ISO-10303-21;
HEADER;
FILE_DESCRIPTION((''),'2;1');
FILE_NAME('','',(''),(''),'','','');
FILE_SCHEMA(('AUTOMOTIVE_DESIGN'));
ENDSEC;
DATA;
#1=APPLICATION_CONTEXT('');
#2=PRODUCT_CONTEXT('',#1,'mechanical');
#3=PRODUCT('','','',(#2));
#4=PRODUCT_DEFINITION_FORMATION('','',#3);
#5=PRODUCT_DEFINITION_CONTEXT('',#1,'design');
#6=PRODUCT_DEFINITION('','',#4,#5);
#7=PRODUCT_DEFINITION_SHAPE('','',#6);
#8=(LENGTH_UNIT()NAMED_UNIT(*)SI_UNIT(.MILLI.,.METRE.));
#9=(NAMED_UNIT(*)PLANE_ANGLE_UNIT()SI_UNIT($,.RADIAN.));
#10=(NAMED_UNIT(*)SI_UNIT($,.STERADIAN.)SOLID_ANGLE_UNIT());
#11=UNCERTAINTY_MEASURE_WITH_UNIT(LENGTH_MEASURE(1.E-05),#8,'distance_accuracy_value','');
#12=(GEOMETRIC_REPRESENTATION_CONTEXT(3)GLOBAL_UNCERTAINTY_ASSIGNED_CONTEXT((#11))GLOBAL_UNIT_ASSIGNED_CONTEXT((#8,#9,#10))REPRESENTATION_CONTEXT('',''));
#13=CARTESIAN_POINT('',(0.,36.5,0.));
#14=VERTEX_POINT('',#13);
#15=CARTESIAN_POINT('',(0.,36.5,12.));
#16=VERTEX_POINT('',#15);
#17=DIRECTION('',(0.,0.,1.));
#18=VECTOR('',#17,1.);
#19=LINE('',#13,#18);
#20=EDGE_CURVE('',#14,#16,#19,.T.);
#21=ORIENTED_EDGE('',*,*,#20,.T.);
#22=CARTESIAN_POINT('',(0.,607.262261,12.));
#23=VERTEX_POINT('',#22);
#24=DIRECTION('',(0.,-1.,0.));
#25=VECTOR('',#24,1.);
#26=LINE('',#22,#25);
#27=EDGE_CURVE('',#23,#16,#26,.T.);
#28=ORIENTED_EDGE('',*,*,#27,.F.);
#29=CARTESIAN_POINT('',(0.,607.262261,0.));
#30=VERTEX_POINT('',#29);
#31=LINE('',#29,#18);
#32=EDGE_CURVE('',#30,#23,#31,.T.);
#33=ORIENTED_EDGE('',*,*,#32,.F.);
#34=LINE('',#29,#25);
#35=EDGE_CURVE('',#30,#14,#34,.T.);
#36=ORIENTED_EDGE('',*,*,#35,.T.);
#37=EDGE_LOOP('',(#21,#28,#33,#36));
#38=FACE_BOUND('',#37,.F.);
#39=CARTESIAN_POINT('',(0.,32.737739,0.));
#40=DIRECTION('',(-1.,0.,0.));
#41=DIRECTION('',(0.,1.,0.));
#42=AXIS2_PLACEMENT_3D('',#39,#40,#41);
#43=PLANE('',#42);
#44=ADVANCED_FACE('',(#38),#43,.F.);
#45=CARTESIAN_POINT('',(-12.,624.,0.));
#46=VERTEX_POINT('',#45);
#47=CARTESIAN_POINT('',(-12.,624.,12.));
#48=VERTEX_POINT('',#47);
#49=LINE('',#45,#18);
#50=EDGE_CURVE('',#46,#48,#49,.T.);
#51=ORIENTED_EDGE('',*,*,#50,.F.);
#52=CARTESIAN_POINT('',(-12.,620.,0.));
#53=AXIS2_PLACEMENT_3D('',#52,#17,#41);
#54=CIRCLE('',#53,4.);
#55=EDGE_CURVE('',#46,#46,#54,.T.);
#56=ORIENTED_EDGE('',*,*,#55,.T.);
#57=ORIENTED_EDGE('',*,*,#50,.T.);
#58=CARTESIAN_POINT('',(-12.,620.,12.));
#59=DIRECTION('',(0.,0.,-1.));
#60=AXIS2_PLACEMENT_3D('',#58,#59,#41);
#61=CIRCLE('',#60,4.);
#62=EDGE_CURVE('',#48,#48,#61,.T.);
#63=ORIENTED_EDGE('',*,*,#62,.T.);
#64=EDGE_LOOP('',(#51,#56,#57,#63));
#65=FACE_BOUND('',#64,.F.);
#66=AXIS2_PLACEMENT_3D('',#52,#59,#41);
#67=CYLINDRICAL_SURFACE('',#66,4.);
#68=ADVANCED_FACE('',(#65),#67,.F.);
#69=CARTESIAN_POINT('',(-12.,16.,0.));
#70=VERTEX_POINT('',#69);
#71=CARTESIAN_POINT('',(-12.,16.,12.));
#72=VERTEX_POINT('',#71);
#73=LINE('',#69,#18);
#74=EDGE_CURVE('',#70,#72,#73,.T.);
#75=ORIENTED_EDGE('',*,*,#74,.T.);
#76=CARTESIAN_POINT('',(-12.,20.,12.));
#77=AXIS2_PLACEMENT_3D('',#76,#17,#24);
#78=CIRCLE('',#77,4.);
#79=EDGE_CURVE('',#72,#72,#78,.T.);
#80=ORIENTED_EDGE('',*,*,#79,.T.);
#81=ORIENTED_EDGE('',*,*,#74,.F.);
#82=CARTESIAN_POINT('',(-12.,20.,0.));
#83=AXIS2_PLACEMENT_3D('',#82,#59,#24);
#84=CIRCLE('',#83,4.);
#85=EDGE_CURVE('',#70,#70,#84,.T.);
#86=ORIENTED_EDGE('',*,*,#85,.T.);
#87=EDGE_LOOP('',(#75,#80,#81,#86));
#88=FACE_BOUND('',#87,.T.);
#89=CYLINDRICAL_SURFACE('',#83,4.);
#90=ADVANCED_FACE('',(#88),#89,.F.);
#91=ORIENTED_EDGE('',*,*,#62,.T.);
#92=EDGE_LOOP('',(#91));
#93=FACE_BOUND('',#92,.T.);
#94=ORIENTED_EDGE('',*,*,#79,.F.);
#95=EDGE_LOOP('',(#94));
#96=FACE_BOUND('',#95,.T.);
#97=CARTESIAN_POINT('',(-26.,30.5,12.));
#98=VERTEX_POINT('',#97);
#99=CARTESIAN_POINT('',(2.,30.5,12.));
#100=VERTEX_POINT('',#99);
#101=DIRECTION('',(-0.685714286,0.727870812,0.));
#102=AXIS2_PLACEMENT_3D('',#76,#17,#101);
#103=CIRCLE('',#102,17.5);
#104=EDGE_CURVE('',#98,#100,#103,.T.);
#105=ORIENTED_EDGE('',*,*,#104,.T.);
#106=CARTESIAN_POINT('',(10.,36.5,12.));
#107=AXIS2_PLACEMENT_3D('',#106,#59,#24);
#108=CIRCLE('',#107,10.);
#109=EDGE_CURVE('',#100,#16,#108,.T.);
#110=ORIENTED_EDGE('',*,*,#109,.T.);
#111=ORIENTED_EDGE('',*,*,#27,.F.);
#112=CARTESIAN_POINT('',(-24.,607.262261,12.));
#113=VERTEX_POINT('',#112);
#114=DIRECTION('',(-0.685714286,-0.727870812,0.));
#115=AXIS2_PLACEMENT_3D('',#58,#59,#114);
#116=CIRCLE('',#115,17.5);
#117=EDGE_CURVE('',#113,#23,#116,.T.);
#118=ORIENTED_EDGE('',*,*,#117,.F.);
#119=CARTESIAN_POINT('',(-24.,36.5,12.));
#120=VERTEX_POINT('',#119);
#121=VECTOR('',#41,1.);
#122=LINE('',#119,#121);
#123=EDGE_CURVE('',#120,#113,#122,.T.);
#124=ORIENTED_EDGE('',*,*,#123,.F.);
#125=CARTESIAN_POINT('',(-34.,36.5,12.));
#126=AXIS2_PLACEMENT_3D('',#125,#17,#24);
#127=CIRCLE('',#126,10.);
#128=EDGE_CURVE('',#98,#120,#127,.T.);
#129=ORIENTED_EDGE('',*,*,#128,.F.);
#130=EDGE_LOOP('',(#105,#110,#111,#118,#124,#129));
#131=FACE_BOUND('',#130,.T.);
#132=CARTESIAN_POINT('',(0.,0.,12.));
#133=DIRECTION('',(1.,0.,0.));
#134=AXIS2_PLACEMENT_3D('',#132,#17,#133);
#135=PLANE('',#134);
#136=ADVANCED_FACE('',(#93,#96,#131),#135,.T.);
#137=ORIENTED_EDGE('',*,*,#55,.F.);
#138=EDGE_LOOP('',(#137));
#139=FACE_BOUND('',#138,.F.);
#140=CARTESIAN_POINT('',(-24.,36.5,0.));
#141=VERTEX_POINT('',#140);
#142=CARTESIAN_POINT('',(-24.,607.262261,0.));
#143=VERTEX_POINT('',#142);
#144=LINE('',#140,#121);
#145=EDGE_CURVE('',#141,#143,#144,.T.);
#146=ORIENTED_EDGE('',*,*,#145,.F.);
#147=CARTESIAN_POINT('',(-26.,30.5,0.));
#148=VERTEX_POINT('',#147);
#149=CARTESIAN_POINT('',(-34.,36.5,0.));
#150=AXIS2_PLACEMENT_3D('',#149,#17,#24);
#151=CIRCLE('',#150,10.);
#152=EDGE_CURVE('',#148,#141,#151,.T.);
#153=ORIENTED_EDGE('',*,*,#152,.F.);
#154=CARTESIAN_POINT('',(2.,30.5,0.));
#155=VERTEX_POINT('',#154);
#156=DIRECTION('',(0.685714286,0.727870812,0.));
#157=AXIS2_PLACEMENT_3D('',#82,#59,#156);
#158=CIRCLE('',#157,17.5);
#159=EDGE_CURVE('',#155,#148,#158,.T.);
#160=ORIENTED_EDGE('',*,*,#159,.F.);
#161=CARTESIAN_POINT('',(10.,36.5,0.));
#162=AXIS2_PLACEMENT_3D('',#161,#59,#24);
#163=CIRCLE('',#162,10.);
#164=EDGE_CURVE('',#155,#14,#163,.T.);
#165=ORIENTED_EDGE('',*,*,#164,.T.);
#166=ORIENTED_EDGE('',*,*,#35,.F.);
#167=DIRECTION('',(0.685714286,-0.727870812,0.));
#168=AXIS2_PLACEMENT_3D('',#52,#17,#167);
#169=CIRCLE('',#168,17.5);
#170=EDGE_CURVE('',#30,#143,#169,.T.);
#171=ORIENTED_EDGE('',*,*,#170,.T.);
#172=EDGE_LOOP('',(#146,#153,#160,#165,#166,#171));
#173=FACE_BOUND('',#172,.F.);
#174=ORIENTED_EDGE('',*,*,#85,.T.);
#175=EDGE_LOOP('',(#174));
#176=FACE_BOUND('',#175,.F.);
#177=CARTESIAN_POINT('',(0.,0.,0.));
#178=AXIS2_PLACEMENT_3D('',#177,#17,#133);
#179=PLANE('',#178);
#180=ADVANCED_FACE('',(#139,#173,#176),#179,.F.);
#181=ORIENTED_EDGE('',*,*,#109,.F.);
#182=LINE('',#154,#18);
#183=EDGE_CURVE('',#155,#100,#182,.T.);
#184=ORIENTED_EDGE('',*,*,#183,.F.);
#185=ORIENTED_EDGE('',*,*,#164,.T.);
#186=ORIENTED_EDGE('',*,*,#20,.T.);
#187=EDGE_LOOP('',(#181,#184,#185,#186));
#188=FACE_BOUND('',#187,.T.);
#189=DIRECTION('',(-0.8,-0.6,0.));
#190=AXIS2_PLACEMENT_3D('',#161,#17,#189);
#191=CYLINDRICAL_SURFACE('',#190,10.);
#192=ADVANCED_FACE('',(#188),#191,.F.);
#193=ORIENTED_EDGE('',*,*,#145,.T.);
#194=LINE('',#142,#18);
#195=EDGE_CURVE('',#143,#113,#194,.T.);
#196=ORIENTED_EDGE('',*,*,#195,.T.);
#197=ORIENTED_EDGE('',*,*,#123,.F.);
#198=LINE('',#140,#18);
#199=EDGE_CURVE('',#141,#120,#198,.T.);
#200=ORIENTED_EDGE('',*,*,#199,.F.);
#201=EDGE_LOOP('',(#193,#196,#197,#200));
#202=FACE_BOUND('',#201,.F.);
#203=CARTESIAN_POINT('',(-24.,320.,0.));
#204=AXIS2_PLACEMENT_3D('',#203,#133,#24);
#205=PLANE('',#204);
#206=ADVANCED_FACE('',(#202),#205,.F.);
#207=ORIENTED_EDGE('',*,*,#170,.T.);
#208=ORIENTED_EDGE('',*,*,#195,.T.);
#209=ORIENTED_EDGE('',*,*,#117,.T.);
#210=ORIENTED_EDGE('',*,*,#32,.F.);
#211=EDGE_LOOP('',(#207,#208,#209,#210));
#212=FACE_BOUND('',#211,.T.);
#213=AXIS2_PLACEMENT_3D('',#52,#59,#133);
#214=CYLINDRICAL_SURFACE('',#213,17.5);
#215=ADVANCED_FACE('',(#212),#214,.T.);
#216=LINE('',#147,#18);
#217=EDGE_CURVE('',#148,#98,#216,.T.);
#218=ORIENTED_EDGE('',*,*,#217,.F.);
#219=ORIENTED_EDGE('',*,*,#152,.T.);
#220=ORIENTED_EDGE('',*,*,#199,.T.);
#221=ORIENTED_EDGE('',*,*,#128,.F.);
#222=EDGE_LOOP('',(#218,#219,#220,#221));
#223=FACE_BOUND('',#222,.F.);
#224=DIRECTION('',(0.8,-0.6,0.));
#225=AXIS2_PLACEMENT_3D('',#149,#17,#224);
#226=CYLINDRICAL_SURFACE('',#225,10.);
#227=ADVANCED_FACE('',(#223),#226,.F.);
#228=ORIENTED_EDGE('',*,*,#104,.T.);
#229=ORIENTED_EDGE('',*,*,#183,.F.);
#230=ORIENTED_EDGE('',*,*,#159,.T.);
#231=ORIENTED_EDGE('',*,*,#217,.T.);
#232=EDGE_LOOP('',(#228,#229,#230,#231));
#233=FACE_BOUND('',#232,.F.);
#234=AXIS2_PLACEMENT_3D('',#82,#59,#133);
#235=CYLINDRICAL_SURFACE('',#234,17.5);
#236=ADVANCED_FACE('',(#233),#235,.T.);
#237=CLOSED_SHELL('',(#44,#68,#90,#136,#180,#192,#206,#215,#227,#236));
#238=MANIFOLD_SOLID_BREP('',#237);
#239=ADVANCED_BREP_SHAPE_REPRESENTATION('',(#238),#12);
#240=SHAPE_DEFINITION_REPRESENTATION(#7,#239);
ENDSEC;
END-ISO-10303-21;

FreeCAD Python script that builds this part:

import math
import FreeCAD as App
import Part
import Sketcher

V = App.Vector


def edges_at(feature, points):
    """Names of the edges that pass closest to the given points."""
    edges = feature.Shape.Edges
    near = lambda p: min(range(len(edges)), key=lambda i: edges[i].distToShape(Part.Vertex(*p))[0])
    return sorted({f"Edge{near(p) + 1}" for p in points})

doc = App.newDocument("Part")
params = doc.addObject("Spreadsheet::Sheet", "Params")
for row, (alias, value) in enumerate([
    ("sketch1_radius", "17.5 mm"),
    ("sketch1_diameter", "8 mm"),
    ("pad1_length", "12 mm"),
    ("fillet_radius", "10 mm"),
], start=1):
    params.set(f"A{row}", alias)
    params.set(f"B{row}", "=" + value)
    params.setAlias(f"B{row}", alias)

body = doc.addObject("PartDesign::Body", "Body")

# Sketch on XY plane
sketch1 = body.newObject("Sketcher::SketchObject", "Sketch")
sketch1.AttachmentSupport = (doc.getObject("XY_Plane"), [""])
sketch1.MapMode = "FlatFace"
sketch1.addGeometry(Part.LineSegment(V(0, 32.737739, 0), V(0, 320, 0)), False)
sketch1.addGeometry(Part.LineSegment(V(0, 320, 0), V(-24, 320, 0)), False)
sketch1.addGeometry(Part.LineSegment(V(-24, 320, 0), V(-24, 32.737739, 0)), False)
sketch1.addGeometry(Part.ArcOfCircle(Part.Circle(V(-12, 20, 0), V(0, 0, 1), 17.5), math.radians(133.291808), math.radians(406.708192)), False)
sketch1.addGeometry(Part.Circle(V(-12, 20, 0), V(0, 0, 1), 4), False)
sketch1.addConstraint(Sketcher.Constraint("Coincident", 0, 2, 1, 1))
sketch1.addConstraint(Sketcher.Constraint("Coincident", 1, 2, 2, 1))
sketch1.addConstraint(Sketcher.Constraint("Coincident", 2, 2, 3, 1))
sketch1.addConstraint(Sketcher.Constraint("Coincident", 3, 2, 0, 1))
sketch1.addConstraint(Sketcher.Constraint("Vertical", 0))
sketch1.addConstraint(Sketcher.Constraint("Horizontal", 1))
sketch1.addConstraint(Sketcher.Constraint("Vertical", 2))
sketch1.addConstraint(Sketcher.Constraint("Coincident", 4, 3, 3, 3))
sketch1.addConstraint(Sketcher.Constraint("PointOnObject", 0, 2, -2))
sketch1.addConstraint(Sketcher.Constraint("Horizontal", 2, 2, 3, 2))
sketch1.addConstraint(Sketcher.Constraint("Radius", 3, 17.5))
sketch1.addConstraint(Sketcher.Constraint("Diameter", 4, 8.0))
sketch1.addConstraint(Sketcher.Constraint("DistanceX", 3, 3, -1, 1, 12.0))
sketch1.addConstraint(Sketcher.Constraint("DistanceY", 3, 3, 0, 2, 300.0))
sketch1.addConstraint(Sketcher.Constraint("DistanceY", -1, 1, 3, 3, 20.0))
sketch1.setExpression("Constraints[10]", "Params.sketch1_radius")
sketch1.setExpression("Constraints[11]", "Params.sketch1_diameter")
pad1 = body.newObject("PartDesign::Pad", "Pad")
pad1.Profile = sketch1
pad1.setExpression("Length", "Params.pad1_length")
doc.recompute()

fillet = body.newObject("PartDesign::Fillet", "Fillet")
fillet.Base = (pad1, edges_at(pad1, [(-24, 32.738, 6), (0, 32.738, 6)]))
fillet.setExpression("Radius", "Params.fillet_radius")
doc.recompute()

datumplane = body.newObject("PartDesign::Plane", "DatumPlane")
datumplane.AttachmentSupport = (doc.getObject("XZ_Plane"), [""])
datumplane.MapMode = "FlatFace"
datumplane.AttachmentOffset = App.Placement(V(0, 0, -320), App.Rotation())
mirrored = body.newObject("PartDesign::Mirrored", "Mirrored")
mirrored.Originals = [pad1]
mirrored.MirrorPlane = (datumplane, [""])
body.Tip = mirrored

doc.recompute()
